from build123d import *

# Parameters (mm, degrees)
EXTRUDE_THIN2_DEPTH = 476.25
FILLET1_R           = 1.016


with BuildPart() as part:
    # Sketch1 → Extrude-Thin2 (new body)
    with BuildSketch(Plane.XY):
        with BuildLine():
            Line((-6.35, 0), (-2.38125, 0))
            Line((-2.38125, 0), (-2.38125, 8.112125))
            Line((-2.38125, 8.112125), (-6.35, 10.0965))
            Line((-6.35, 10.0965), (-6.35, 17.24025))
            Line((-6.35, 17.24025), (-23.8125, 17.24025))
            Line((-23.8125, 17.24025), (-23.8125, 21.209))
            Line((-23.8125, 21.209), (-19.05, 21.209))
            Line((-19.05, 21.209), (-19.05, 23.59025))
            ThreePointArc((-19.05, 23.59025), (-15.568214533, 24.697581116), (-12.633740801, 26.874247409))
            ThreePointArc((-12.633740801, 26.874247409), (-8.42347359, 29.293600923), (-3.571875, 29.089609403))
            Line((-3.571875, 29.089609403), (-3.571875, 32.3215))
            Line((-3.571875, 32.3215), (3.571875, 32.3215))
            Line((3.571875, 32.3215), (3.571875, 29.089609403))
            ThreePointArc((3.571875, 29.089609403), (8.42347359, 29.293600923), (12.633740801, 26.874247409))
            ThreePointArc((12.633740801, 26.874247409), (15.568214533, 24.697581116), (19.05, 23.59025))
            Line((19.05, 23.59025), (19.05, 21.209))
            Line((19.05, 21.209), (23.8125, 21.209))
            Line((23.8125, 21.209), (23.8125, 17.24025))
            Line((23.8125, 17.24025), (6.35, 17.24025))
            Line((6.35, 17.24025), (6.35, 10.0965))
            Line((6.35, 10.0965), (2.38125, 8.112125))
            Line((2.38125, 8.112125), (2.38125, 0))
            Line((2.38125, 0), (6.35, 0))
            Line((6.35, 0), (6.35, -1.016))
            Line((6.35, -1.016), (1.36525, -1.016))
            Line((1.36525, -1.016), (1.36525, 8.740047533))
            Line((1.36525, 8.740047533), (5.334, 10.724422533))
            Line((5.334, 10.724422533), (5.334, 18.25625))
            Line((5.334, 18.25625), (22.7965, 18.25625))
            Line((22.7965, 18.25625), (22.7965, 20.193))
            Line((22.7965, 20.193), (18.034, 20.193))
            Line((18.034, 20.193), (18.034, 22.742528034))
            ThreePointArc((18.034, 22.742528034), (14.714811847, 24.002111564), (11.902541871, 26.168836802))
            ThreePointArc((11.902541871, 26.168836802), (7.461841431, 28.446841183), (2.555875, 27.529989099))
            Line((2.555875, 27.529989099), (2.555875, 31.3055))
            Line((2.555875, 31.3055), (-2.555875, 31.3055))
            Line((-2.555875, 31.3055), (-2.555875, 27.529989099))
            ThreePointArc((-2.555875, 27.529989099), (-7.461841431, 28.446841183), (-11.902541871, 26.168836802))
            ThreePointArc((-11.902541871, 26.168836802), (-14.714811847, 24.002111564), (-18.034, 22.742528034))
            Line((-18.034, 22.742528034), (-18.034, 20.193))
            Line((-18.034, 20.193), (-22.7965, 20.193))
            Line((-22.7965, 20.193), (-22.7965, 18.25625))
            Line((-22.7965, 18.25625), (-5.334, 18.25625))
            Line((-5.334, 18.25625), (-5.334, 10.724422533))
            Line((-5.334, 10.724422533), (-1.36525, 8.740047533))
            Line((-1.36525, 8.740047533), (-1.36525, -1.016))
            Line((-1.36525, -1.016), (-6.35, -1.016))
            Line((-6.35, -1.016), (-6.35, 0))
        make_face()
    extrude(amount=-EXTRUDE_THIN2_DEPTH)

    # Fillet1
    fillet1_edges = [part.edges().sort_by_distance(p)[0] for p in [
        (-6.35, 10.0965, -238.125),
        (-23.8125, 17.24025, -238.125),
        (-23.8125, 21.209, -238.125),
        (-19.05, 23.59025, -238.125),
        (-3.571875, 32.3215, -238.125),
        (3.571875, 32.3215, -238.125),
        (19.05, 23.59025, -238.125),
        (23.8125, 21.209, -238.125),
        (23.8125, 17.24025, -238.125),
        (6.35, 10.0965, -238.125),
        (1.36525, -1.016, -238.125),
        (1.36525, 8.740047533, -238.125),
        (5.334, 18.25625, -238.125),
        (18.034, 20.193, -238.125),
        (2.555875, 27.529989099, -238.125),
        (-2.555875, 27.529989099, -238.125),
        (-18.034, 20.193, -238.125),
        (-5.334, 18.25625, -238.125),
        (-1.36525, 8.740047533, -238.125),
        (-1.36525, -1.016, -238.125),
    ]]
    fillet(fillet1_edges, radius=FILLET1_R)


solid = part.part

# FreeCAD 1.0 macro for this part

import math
import FreeCAD as App
import Part
import Sketcher
Q = App.Units.Quantity


def edges_at(feature, points):
    """Names of the edges that pass closest to the given points."""
    edges = feature.Shape.Edges
    near = lambda p: min(range(len(edges)), key=lambda i: edges[i].distToShape(Part.Vertex(*p))[0])
    return sorted({f"Edge{near(p) + 1}" for p in points})

doc = App.newDocument("Part")
body = doc.addObject("PartDesign::Body", "Body")

sketch1 = doc.addObject("Sketcher::SketchObject", "Sketch")
body.addObject(sketch1)
sketch1.AttachmentSupport = (doc.XY_Plane, [""])
sketch1.MapMode = "FlatFace"
sketch1.addGeometry([
    Part.LineSegment(App.Vector(-2.38125, 0, 0), App.Vector(-6.35, 0, 0)),
    Part.LineSegment(App.Vector(-6.35, 0, 0), App.Vector(-6.35, -1.016, 0)),
    Part.LineSegment(App.Vector(-6.35, -1.016, 0), App.Vector(-1.36525, -1.016, 0)),
    Part.LineSegment(App.Vector(-1.36525, -1.016, 0), App.Vector(-1.36525, 8.740048, 0)),
    Part.LineSegment(App.Vector(-1.36525, 8.740048, 0), App.Vector(-5.334, 10.724423, 0)),
    Part.LineSegment(App.Vector(-5.334, 10.724423, 0), App.Vector(-5.334, 18.25625, 0)),
    Part.LineSegment(App.Vector(-5.334, 18.25625, 0), App.Vector(-22.7965, 18.25625, 0)),
    Part.LineSegment(App.Vector(-22.7965, 18.25625, 0), App.Vector(-22.7965, 20.193, 0)),
    Part.LineSegment(App.Vector(-22.7965, 20.193, 0), App.Vector(-18.034, 20.193, 0)),
    Part.LineSegment(App.Vector(-18.034, 20.193, 0), App.Vector(-18.034, 22.742528, 0)),
    Part.ArcOfCircle(Part.Circle(App.Vector(-20.631229, 34.589676, 0), App.Vector(0, 0, 1), 12.1285), math.radians(-77.634767), math.radians(-43.971604)),
    Part.ArcOfCircle(Part.Circle(App.Vector(-6.35, 20.812125, 0), App.Vector(0, 0, 1), 7.71525), math.radians(60.543045), math.radians(136.028396)),
    Part.LineSegment(App.Vector(-2.555875, 27.529989, 0), App.Vector(-2.555875, 31.3055, 0)),
    Part.LineSegment(App.Vector(-2.555875, 31.3055, 0), App.Vector(2.555875, 31.3055, 0)),
    Part.LineSegment(App.Vector(2.555875, 31.3055, 0), App.Vector(2.555875, 27.529989, 0)),
    Part.ArcOfCircle(Part.Circle(App.Vector(6.35, 20.812125, 0), App.Vector(0, 0, 1), 7.71525), math.radians(43.971604), math.radians(119.456955)),
    Part.ArcOfCircle(Part.Circle(App.Vector(20.631229, 34.589676, 0), App.Vector(0, 0, 1), 12.1285), math.radians(-136.028396), math.radians(-102.365233)),
    Part.LineSegment(App.Vector(18.034, 22.742528, 0), App.Vector(18.034, 20.193, 0)),
    Part.LineSegment(App.Vector(18.034, 20.193, 0), App.Vector(22.7965, 20.193, 0)),
    Part.LineSegment(App.Vector(22.7965, 20.193, 0), App.Vector(22.7965, 18.25625, 0)),
    Part.LineSegment(App.Vector(22.7965, 18.25625, 0), App.Vector(5.334, 18.25625, 0)),
    Part.LineSegment(App.Vector(5.334, 18.25625, 0), App.Vector(5.334, 10.724423, 0)),
    Part.LineSegment(App.Vector(5.334, 10.724423, 0), App.Vector(1.36525, 8.740048, 0)),
    Part.LineSegment(App.Vector(1.36525, 8.740048, 0), App.Vector(1.36525, -1.016, 0)),
    Part.LineSegment(App.Vector(1.36525, -1.016, 0), App.Vector(6.35, -1.016, 0)),
    Part.LineSegment(App.Vector(6.35, -1.016, 0), App.Vector(6.35, 0, 0)),
    Part.LineSegment(App.Vector(6.35, 0, 0), App.Vector(2.38125, 0, 0)),
    Part.LineSegment(App.Vector(2.38125, 0, 0), App.Vector(2.38125, 8.112125, 0)),
    Part.LineSegment(App.Vector(2.38125, 8.112125, 0), App.Vector(6.35, 10.0965, 0)),
    Part.LineSegment(App.Vector(6.35, 10.0965, 0), App.Vector(6.35, 17.24025, 0)),
    Part.LineSegment(App.Vector(6.35, 17.24025, 0), App.Vector(23.8125, 17.24025, 0)),
    Part.LineSegment(App.Vector(23.8125, 17.24025, 0), App.Vector(23.8125, 21.209, 0)),
    Part.LineSegment(App.Vector(23.8125, 21.209, 0), App.Vector(19.05, 21.209, 0)),
    Part.LineSegment(App.Vector(19.05, 21.209, 0), App.Vector(19.05, 23.59025, 0)),
    Part.ArcOfCircle(Part.Circle(App.Vector(20.631229, 34.589676, 0), App.Vector(0, 0, 1), 11.1125), math.radians(-136.028396), math.radians(-98.180544)),
    Part.ArcOfCircle(Part.Circle(App.Vector(6.35, 20.812125, 0), App.Vector(0, 0, 1), 8.73125), math.radians(43.971604), math.radians(108.553005)),
    Part.LineSegment(App.Vector(3.571875, 29.089609, 0), App.Vector(3.571875, 32.3215, 0)),
    Part.LineSegment(App.Vector(3.571875, 32.3215, 0), App.Vector(-3.571875, 32.3215, 0)),
    Part.LineSegment(App.Vector(-3.571875, 32.3215, 0), App.Vector(-3.571875, 29.089609, 0)),
    Part.ArcOfCircle(Part.Circle(App.Vector(-6.35, 20.812125, 0), App.Vector(0, 0, 1), 8.73125), math.radians(71.446995), math.radians(136.028396)),
    Part.ArcOfCircle(Part.Circle(App.Vector(-20.631229, 34.589676, 0), App.Vector(0, 0, 1), 11.1125), math.radians(-81.819456), math.radians(-43.971604)),
    Part.LineSegment(App.Vector(-19.05, 23.59025, 0), App.Vector(-19.05, 21.209, 0)),
    Part.LineSegment(App.Vector(-19.05, 21.209, 0), App.Vector(-23.8125, 21.209, 0)),
    Part.LineSegment(App.Vector(-23.8125, 21.209, 0), App.Vector(-23.8125, 17.24025, 0)),
    Part.LineSegment(App.Vector(-23.8125, 17.24025, 0), App.Vector(-6.35, 17.24025, 0)),
    Part.LineSegment(App.Vector(-6.35, 17.24025, 0), App.Vector(-6.35, 10.0965, 0)),
    Part.LineSegment(App.Vector(-6.35, 10.0965, 0), App.Vector(-2.38125, 8.112125, 0)),
    Part.LineSegment(App.Vector(-2.38125, 8.112125, 0), App.Vector(-2.38125, 0, 0)),
], False)
sketch1.addConstraint([
    Sketcher.Constraint("Coincident", 0, 2, 1, 1),
    Sketcher.Constraint("Coincident", 1, 2, 2, 1),
    Sketcher.Constraint("Coincident", 2, 2, 3, 1),
    Sketcher.Constraint("Coincident", 3, 2, 4, 1),
    Sketcher.Constraint("Coincident", 4, 2, 5, 1),
    Sketcher.Constraint("Coincident", 5, 2, 6, 1),
    Sketcher.Constraint("Coincident", 6, 2, 7, 1),
    Sketcher.Constraint("Coincident", 7, 2, 8, 1),
    Sketcher.Constraint("Coincident", 8, 2, 9, 1),
    Sketcher.Constraint("Coincident", 9, 2, 10, 1),
    Sketcher.Constraint("Tangent", 10, 2, 11, 2),
    Sketcher.Constraint("Coincident", 11, 1, 12, 1),
    Sketcher.Constraint("Coincident", 12, 2, 13, 1),
    Sketcher.Constraint("Coincident", 13, 2, 14, 1),
    Sketcher.Constraint("Coincident", 14, 2, 15, 2),
    Sketcher.Constraint("Tangent", 15, 1, 16, 1),
    Sketcher.Constraint("Coincident", 16, 2, 17, 1),
    Sketcher.Constraint("Coincident", 17, 2, 18, 1),
    Sketcher.Constraint("Coincident", 18, 2, 19, 1),
    Sketcher.Constraint("Coincident", 19, 2, 20, 1),
    Sketcher.Constraint("Coincident", 20, 2, 21, 1),
    Sketcher.Constraint("Coincident", 21, 2, 22, 1),
    Sketcher.Constraint("Coincident", 22, 2, 23, 1),
    Sketcher.Constraint("Coincident", 23, 2, 24, 1),
    Sketcher.Constraint("Coincident", 24, 2, 25, 1),
    Sketcher.Constraint("Coincident", 25, 2, 26, 1),
    Sketcher.Constraint("Coincident", 26, 2, 27, 1),
    Sketcher.Constraint("Coincident", 27, 2, 28, 1),
    Sketcher.Constraint("Coincident", 28, 2, 29, 1),
    Sketcher.Constraint("Coincident", 29, 2, 30, 1),
    Sketcher.Constraint("Coincident", 30, 2, 31, 1),
    Sketcher.Constraint("Coincident", 31, 2, 32, 1),
    Sketcher.Constraint("Coincident", 32, 2, 33, 1),
    Sketcher.Constraint("Coincident", 33, 2, 34, 2),
    Sketcher.Constraint("Tangent", 34, 1, 35, 1),
    Sketcher.Constraint("Coincident", 35, 2, 36, 1),
    Sketcher.Constraint("Coincident", 36, 2, 37, 1),
    Sketcher.Constraint("Coincident", 37, 2, 38, 1),
    Sketcher.Constraint("Coincident", 38, 2, 39, 1),
    Sketcher.Constraint("Tangent", 39, 2, 40, 2),
    Sketcher.Constraint("Coincident", 40, 1, 41, 1),
    Sketcher.Constraint("Coincident", 41, 2, 42, 1),
    Sketcher.Constraint("Coincident", 42, 2, 43, 1),
    Sketcher.Constraint("Coincident", 43, 2, 44, 1),
    Sketcher.Constraint("Coincident", 44, 2, 45, 1),
    Sketcher.Constraint("Coincident", 45, 2, 46, 1),
    Sketcher.Constraint("Coincident", 46, 2, 47, 1),
    Sketcher.Constraint("Coincident", 47, 2, 0, 1),
    Sketcher.Constraint("Horizontal", 0),
    Sketcher.Constraint("Vertical", 1),
    Sketcher.Constraint("Horizontal", 2),
    Sketcher.Constraint("Vertical", 3),
    Sketcher.Constraint("Vertical", 5),
    Sketcher.Constraint("Horizontal", 6),
    Sketcher.Constraint("Vertical", 7),
    Sketcher.Constraint("Horizontal", 8),
    Sketcher.Constraint("Vertical", 9),
    Sketcher.Constraint("Vertical", 12),
    Sketcher.Constraint("Horizontal", 13),
    Sketcher.Constraint("Vertical", 14),
    Sketcher.Constraint("Vertical", 17),
    Sketcher.Constraint("Horizontal", 18),
    Sketcher.Constraint("Vertical", 19),
    Sketcher.Constraint("Horizontal", 20),
    Sketcher.Constraint("Vertical", 21),
    Sketcher.Constraint("Vertical", 23),
    Sketcher.Constraint("Horizontal", 24),
    Sketcher.Constraint("Vertical", 25),
    Sketcher.Constraint("Horizontal", 26),
    Sketcher.Constraint("Vertical", 27),
    Sketcher.Constraint("Vertical", 29),
    Sketcher.Constraint("Horizontal", 30),
    Sketcher.Constraint("Vertical", 31),
    Sketcher.Constraint("Horizontal", 32),
    Sketcher.Constraint("Vertical", 33),
    Sketcher.Constraint("Vertical", 36),
    Sketcher.Constraint("Horizontal", 37),
    Sketcher.Constraint("Vertical", 38),
    Sketcher.Constraint("Vertical", 41),
    Sketcher.Constraint("Horizontal", 42),
    Sketcher.Constraint("Vertical", 43),
    Sketcher.Constraint("Horizontal", 44),
    Sketcher.Constraint("Vertical", 45),
    Sketcher.Constraint("Vertical", 47),
    Sketcher.Constraint("Coincident", 34, 3, 16, 3),
    Sketcher.Constraint("Coincident", 35, 3, 15, 3),
    Sketcher.Constraint("Coincident", 39, 3, 11, 3),
    Sketcher.Constraint("Coincident", 40, 3, 10, 3),
    Sketcher.Constraint("Equal", 11, 15),
    Sketcher.Constraint("Equal", 10, 16),
    Sketcher.Constraint("Equal", 35, 39),
    Sketcher.Constraint("Symmetric", 0, 2, 25, 2, -1, 1),
    Sketcher.Constraint("Symmetric", 11, 3, 15, 3, -2),
    Sketcher.Constraint("Symmetric", 9, 2, 16, 2, -2),
    Sketcher.Constraint("Symmetric", 7, 2, 18, 2, -2),
    Sketcher.Constraint("Symmetric", 5, 2, 20, 2, -2),
    Sketcher.Constraint("Symmetric", 3, 2, 22, 2, -2),
    Sketcher.Constraint("Symmetric", 32, 2, 41, 2, -2),
    Sketcher.Constraint("Symmetric", 30, 2, 43, 2, -2),
    Sketcher.Constraint("Symmetric", 28, 2, 45, 2, -2),
    Sketcher.Constraint("Symmetric", 27, 2, 46, 2, -2),
    Sketcher.Constraint("PointOnObject", 0, 2, -1),
    Sketcher.Constraint("Parallel", 22, 28),
    Sketcher.Constraint("Parallel", 4, 46),
    Sketcher.Constraint("Horizontal", 11, 1, 14, 2),
    Sketcher.Constraint("Horizontal", 2, 2, 23, 2),
    Sketcher.Constraint("Horizontal", 35, 2, 38, 2),
    Sketcher.Constraint("Vertical", 39, 3, 0, 2),
    Sketcher.Constraint("Vertical", 25, 2, 28, 2),
    Sketcher.Constraint("Equal", 20, 30),
    Sketcher.Constraint("Equal", 18, 32),
    Sketcher.Constraint("Equal", 37, 29),
    Sketcher.Constraint("Equal", 26, 31),
    Sketcher.Constraint("Equal", 22, 28),
    Sketcher.Constraint("Radius", 34, Q("0.4375 in")),
    Sketcher.Constraint("Radius", 35, Q("0.34375 in")),
    Sketcher.Constraint("DistanceY", 1, 2, 1, 1, Q("0.04 in")),
    Sketcher.Constraint("Radius", 10, Q("0.4775 in")),
    Sketcher.Constraint("DistanceX", 11, 3, 15, 3, Q("0.5 in")),
    Sketcher.Constraint("DistanceX", 8, 2, 5, 2, Q("0.5 in")),
    Sketcher.Constraint("DistanceX", 0, 2, 0, 1, Q("0.15625 in")),
    Sketcher.Constraint("DistanceX", 6, 2, 6, 1, Q("0.6875 in")),
    Sketcher.Constraint("DistanceX", 37, 2, 37, 1, Q("0.28125 in")),
    Sketcher.Constraint("DistanceY", 33, 1, 33, 2, Q("0.09375 in")),
    Sketcher.Constraint("DistanceX", 4, 2, -1, 1, Q("0.21 in")),
    Sketcher.Constraint("DistanceY", 29, 2, 20, 2, Q("0.04 in")),
    Sketcher.Constraint("DistanceY", 18, 2, 31, 2, Q("0.04 in")),
    Sketcher.Constraint("DistanceX", 14, 2, 35, 2, Q("0.04 in")),
    Sketcher.Constraint("DistanceY", 13, 2, 36, 2, Q("0.04 in")),
    Sketcher.Constraint("DistanceY", -1, 1, 5, 2, Q("0.71875 in")),
    Sketcher.Constraint("DistanceY", 1, 2, 11, 3, Q("0.859375 in")),
    Sketcher.Constraint("DistanceY", 3, 2, 4, 2, Q("0.078125 in")),
    Sketcher.Constraint("DistanceY", -1, 1, 12, 2, Q("1.2325 in")),
    Sketcher.Constraint("DistanceY", 3, 1, 3, 2, Q("9.756048 mm")),
])
pad1 = doc.addObject("PartDesign::Pad", "Pad")
body.addObject(pad1)
pad1.Profile = sketch1
pad1.Length = Q("18.75 in")
pad1.Reversed = True
doc.recompute()

fillet = doc.addObject("PartDesign::Fillet", "Fillet")
body.addObject(fillet)
fillet.Base = (pad1, edges_at(pad1, [
    (-6.35, 10.097, -238.125),
    (-23.812, 17.24, -238.125),
    (-23.812, 21.209, -238.125),
    (-19.05, 23.59, -238.125),
    (-3.572, 32.322, -238.125),
    (3.572, 32.322, -238.125),
    (19.05, 23.59, -238.125),
    (23.812, 21.209, -238.125),
    (23.812, 17.24, -238.125),
    (6.35, 10.097, -238.125),
    (1.365, -1.016, -238.125),
    (1.365, 8.74, -238.125),
    (5.334, 18.256, -238.125),
    (18.034, 20.193, -238.125),
    (2.556, 27.53, -238.125),
    (-2.556, 27.53, -238.125),
    (-18.034, 20.193, -238.125),
    (-5.334, 18.256, -238.125),
    (-1.365, 8.74, -238.125),
    (-1.365, -1.016, -238.125),
]))
fillet.Radius = Q("0.04 in")

doc.recompute()
